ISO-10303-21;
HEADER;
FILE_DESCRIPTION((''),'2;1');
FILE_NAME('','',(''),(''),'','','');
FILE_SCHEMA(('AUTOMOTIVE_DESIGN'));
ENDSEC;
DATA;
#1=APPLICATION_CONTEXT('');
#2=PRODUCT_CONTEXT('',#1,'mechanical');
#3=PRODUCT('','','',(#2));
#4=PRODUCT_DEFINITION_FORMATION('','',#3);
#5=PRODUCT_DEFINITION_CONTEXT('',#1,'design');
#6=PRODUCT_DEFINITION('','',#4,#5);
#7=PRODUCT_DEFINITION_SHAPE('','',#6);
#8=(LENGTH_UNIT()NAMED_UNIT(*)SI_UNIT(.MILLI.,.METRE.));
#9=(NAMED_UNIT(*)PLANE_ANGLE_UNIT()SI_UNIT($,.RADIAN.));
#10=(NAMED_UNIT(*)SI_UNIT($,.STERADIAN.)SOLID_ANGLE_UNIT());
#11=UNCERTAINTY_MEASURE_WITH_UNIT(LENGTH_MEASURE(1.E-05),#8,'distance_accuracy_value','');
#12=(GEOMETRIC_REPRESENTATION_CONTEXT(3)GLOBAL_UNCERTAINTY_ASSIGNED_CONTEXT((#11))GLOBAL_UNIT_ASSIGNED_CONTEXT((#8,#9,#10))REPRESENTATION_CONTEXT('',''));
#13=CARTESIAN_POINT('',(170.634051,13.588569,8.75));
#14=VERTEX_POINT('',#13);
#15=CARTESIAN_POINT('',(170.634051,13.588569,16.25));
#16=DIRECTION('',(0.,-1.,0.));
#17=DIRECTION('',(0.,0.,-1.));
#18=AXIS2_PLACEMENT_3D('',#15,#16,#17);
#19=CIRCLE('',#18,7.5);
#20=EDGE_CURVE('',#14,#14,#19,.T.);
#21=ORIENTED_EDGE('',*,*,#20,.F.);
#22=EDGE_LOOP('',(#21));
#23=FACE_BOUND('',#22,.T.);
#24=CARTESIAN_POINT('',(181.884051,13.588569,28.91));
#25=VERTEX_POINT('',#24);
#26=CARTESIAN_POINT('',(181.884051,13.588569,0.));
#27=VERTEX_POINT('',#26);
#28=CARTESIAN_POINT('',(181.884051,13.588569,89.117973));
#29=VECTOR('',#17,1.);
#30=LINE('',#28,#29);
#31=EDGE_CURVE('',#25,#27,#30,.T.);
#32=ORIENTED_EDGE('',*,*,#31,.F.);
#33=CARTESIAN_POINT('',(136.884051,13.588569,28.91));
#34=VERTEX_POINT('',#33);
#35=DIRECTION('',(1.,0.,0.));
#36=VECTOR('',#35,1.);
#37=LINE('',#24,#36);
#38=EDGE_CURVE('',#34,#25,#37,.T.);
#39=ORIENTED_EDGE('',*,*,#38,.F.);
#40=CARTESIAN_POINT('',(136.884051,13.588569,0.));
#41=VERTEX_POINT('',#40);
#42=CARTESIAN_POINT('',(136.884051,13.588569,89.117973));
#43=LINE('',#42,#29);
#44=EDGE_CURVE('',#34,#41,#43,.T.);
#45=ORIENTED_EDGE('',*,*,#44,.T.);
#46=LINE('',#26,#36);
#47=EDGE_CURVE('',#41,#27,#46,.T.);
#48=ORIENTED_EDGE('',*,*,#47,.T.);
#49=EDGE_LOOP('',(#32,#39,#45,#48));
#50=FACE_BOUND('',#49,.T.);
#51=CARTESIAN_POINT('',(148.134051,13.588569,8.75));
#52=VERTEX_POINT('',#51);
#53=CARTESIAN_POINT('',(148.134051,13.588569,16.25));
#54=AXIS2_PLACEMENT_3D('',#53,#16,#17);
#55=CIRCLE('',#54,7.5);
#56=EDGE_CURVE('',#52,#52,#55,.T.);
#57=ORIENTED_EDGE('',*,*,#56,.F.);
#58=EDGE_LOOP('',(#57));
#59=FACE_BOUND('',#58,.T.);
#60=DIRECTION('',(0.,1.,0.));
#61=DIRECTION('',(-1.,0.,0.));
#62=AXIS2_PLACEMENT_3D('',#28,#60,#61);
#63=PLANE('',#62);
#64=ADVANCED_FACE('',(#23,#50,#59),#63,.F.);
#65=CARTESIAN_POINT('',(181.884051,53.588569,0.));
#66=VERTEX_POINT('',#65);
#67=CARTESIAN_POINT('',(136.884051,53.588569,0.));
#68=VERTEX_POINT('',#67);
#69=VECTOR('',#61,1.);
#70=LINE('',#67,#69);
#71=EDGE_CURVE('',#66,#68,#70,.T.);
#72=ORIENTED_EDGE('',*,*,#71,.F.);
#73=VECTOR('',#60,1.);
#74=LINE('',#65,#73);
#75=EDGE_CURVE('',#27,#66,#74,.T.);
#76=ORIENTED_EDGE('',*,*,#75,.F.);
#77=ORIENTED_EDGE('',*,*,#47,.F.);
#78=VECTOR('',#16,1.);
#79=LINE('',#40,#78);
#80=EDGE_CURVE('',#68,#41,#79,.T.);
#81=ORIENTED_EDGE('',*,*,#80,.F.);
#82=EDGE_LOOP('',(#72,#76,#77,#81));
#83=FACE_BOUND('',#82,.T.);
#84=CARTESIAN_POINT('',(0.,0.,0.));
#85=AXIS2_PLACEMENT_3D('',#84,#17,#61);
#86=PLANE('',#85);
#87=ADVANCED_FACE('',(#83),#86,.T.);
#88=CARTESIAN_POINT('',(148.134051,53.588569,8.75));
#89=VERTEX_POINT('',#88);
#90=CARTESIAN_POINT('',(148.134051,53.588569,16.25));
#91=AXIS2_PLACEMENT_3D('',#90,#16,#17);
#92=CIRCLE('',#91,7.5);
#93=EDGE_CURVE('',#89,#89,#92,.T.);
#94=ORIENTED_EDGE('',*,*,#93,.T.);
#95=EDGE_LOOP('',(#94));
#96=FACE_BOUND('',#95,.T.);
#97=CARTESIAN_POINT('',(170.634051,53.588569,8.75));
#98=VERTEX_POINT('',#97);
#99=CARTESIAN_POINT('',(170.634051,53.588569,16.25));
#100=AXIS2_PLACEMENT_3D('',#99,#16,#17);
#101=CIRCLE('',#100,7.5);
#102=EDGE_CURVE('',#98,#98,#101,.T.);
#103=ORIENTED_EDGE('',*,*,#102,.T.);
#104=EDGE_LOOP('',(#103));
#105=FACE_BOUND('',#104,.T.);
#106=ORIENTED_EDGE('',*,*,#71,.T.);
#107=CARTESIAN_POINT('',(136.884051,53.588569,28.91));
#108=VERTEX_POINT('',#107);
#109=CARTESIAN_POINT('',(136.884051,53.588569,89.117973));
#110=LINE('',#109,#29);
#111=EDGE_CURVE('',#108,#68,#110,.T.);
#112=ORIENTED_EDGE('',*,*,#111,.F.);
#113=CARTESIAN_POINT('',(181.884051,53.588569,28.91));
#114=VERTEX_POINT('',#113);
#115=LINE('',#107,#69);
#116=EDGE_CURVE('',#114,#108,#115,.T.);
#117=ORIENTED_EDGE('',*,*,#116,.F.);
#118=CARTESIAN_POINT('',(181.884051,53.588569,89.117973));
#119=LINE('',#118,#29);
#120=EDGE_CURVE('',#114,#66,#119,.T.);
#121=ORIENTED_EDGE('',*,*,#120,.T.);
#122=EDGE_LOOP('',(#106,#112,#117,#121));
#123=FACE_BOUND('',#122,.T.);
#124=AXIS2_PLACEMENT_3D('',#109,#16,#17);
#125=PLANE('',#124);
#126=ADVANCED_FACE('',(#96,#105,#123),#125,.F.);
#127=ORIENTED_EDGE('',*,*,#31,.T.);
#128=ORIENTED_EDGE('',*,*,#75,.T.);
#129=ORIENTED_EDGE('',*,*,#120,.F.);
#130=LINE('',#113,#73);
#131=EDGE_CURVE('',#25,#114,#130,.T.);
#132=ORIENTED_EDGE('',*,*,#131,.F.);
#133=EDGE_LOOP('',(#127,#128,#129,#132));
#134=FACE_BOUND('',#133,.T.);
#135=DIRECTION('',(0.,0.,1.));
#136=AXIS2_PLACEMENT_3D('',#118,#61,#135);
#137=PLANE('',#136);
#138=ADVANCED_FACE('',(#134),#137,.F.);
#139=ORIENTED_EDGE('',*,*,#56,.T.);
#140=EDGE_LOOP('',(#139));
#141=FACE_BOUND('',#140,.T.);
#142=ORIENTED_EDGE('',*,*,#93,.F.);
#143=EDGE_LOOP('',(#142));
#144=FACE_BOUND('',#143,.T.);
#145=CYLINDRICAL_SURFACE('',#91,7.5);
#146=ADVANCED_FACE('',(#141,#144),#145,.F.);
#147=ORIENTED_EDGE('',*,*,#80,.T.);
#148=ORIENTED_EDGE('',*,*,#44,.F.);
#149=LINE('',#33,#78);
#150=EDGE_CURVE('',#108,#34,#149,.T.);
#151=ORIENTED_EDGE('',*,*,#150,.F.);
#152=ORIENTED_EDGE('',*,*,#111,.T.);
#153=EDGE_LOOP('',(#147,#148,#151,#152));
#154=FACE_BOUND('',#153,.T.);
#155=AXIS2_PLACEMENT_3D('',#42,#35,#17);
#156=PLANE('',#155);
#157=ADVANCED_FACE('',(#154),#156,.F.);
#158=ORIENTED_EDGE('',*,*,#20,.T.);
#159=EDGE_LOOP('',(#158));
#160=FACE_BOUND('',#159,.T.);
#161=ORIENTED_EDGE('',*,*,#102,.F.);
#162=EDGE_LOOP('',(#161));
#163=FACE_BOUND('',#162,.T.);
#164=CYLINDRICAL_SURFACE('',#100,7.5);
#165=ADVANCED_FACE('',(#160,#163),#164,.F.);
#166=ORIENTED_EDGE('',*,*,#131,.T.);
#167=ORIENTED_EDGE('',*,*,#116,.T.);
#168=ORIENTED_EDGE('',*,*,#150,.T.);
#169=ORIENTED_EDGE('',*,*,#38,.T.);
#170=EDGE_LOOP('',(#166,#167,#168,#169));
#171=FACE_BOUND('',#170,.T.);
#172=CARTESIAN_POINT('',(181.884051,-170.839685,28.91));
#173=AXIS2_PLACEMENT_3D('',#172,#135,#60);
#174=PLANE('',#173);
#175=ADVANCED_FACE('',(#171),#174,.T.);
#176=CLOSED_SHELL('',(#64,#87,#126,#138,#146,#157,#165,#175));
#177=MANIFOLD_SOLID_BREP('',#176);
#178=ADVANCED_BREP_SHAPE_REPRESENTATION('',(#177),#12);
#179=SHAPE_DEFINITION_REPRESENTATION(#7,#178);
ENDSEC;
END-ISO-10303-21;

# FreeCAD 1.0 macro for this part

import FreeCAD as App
import Part
import Sketcher
Q = App.Units.Quantity

doc = App.newDocument("Part")
body = doc.addObject("PartDesign::Body", "Body")

sketch1 = body.newObject("Sketcher::SketchObject", "Sketch")
sketch1.AttachmentSupport = (doc.getObject("XY_Plane"), [""])
sketch1.MapMode = "FlatFace"
sketch1.addGeometry(Part.LineSegment(App.Vector(136.884051, 53.588569, 0), App.Vector(136.884051, 13.588569, 0)), False)
sketch1.addGeometry(Part.LineSegment(App.Vector(136.884051, 13.588569, 0), App.Vector(181.884051, 13.588569, 0)), False)
sketch1.addGeometry(Part.LineSegment(App.Vector(181.884051, 13.588569, 0), App.Vector(181.884051, 53.588569, 0)), False)
sketch1.addGeometry(Part.LineSegment(App.Vector(181.884051, 53.588569, 0), App.Vector(136.884051, 53.588569, 0)), False)
sketch1.addConstraint(Sketcher.Constraint("Coincident", 0, 2, 1, 1))
sketch1.addConstraint(Sketcher.Constraint("Coincident", 1, 2, 2, 1))
sketch1.addConstraint(Sketcher.Constraint("Coincident", 2, 2, 3, 1))
sketch1.addConstraint(Sketcher.Constraint("Coincident", 3, 2, 0, 1))
sketch1.addConstraint(Sketcher.Constraint("Vertical", 0))
sketch1.addConstraint(Sketcher.Constraint("Horizontal", 1))
sketch1.addConstraint(Sketcher.Constraint("Vertical", 2))
sketch1.addConstraint(Sketcher.Constraint("Horizontal", 3))
sketch1.addConstraint(Sketcher.Constraint("DistanceX", 1, 1, 1, 2, Q("45 mm")))
sketch1.addConstraint(Sketcher.Constraint("DistanceY", 0, 2, 0, 1, Q("40 mm")))
sketch1.addConstraint(Sketcher.Constraint("DistanceX", -1, 1, 0, 2, Q("136.884051 mm")))
sketch1.addConstraint(Sketcher.Constraint("DistanceY", -1, 1, 0, 2, Q("13.588569 mm")))
pad1 = body.newObject("PartDesign::Pad", "Pad")
pad1.Profile = sketch1
pad1.Length = 28.91

sketch2 = body.newObject("Sketcher::SketchObject", "Sketch001")
sketch2.AttachmentSupport = (doc.getObject("XZ_Plane"), [""])
sketch2.MapMode = "FlatFace"
sketch2.AttachmentOffset = App.Placement(App.Vector(0, 0, -13.588569), App.Rotation())
sketch2.addGeometry(Part.Circle(App.Vector(148.134051, 16.25, 0), App.Vector(0, 0, 1), 7.5), False)
sketch2.addGeometry(Part.Circle(App.Vector(170.634051, 16.25, 0), App.Vector(0, 0, 1), 7.5), False)
sketch2.addConstraint(Sketcher.Constraint("Equal", 0, 1))
sketch2.addConstraint(Sketcher.Constraint("Horizontal", 0, 3, 1, 3))
sketch2.addConstraint(Sketcher.Constraint("Diameter", 0, Q("15 mm")))
sketch2.addConstraint(Sketcher.Constraint("DistanceX", 0, 3, 1, 3, Q("22.5 mm")))
sketch2.addConstraint(Sketcher.Constraint("DistanceY", -1, 1, 0, 3, Q("16.25 mm")))
sketch2.addConstraint(Sketcher.Constraint("DistanceX", -1, 1, 0, 3, Q("148.134051 mm")))
pocket1 = body.newObject("PartDesign::Pocket", "Pocket")
pocket1.Profile = sketch2
pocket1.Type = "ThroughAll"

doc.recompute()
